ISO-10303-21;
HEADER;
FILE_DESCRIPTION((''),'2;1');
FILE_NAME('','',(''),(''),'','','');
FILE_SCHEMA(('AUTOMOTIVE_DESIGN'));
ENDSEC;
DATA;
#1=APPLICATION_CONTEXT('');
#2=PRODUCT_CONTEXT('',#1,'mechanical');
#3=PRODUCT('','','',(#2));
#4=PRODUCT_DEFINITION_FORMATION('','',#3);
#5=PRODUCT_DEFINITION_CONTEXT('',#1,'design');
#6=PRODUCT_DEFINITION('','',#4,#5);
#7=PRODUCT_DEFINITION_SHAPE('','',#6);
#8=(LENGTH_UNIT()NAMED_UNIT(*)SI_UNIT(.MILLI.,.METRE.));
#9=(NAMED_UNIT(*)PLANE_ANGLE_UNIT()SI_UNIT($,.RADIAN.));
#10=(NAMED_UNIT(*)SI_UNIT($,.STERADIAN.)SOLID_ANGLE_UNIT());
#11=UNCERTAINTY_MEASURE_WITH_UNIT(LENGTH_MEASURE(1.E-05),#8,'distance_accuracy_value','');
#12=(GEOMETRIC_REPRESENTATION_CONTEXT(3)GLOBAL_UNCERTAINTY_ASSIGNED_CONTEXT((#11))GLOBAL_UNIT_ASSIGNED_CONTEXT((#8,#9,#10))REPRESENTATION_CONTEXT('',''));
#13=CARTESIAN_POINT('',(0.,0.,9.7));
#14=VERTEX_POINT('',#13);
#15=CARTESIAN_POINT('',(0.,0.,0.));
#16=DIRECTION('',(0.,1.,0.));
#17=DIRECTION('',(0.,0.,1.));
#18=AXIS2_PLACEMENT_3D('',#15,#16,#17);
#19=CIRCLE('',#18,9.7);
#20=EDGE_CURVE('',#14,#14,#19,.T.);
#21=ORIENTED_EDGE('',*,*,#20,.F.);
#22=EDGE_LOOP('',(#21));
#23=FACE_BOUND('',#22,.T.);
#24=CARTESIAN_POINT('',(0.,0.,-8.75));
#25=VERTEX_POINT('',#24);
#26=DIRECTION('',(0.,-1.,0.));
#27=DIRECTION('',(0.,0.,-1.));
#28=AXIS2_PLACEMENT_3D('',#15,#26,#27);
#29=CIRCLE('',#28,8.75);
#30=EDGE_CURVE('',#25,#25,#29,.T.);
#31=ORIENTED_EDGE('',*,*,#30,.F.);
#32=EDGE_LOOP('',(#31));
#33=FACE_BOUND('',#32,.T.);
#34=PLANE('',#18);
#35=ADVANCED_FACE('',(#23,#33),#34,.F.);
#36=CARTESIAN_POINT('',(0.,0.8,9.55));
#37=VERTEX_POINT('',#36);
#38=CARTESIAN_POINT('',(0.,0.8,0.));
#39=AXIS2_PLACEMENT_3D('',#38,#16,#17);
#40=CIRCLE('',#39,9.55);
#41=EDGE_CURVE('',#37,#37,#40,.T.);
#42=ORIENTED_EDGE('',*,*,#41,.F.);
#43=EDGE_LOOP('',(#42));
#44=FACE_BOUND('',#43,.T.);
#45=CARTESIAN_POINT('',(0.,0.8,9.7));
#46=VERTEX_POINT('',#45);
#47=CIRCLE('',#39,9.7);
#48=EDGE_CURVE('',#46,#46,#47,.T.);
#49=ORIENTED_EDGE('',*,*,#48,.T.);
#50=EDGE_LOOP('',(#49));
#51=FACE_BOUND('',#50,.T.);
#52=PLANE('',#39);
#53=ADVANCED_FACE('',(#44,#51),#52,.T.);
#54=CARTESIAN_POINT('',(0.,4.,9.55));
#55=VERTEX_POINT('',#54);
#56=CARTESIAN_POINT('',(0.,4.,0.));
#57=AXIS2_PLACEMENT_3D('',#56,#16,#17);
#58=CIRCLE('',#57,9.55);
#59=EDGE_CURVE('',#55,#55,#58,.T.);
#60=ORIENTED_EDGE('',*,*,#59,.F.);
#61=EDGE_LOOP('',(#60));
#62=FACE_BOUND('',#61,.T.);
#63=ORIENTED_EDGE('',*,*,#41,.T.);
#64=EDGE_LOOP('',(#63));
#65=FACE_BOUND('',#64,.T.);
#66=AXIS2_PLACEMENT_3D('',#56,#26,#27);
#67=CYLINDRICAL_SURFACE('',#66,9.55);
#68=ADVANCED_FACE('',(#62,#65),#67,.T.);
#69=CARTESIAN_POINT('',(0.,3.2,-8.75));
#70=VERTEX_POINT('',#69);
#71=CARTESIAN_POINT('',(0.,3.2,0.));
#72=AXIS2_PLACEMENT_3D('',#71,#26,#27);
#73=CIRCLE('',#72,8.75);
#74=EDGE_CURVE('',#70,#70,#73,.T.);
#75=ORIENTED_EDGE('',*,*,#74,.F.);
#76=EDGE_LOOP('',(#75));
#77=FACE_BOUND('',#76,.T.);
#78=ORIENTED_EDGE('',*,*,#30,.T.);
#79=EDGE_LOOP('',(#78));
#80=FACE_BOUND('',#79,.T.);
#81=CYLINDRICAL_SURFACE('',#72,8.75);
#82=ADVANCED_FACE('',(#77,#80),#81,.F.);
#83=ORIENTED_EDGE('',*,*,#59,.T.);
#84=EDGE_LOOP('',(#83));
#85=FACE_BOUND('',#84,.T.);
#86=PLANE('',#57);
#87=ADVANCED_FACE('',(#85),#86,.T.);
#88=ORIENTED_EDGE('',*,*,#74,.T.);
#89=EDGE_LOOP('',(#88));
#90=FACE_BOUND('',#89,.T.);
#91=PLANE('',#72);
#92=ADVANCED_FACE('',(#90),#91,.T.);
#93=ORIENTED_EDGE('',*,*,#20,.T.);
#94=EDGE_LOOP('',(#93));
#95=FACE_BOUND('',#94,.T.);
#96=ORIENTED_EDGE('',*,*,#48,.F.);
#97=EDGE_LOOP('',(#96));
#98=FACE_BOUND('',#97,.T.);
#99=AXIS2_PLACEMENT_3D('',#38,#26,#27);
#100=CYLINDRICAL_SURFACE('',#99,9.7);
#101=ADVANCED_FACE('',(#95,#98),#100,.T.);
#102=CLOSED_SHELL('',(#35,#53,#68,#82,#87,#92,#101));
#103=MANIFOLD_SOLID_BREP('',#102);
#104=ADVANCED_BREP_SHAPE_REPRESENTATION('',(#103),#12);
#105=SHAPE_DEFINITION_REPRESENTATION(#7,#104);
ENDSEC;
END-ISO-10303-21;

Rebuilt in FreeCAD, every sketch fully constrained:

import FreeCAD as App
import Part
import Sketcher
Q = App.Units.Quantity

doc = App.newDocument("Part")
body = doc.addObject("PartDesign::Body", "Body")

sketch1 = doc.addObject("Sketcher::SketchObject", "Sketch")
body.addObject(sketch1)
sketch1.AttachmentSupport = (doc.XZ_Plane, [""])
sketch1.MapMode = "FlatFace"
sketch1.addGeometry(Part.Circle(App.Vector(0, 0, 0), App.Vector(0, 0, 1), 10), False)
sketch1.addConstraint([
    Sketcher.Constraint("Coincident", 0, 3, -1, 1),
    Sketcher.Constraint("Diameter", 0, Q("19.4 mm")),
])
pad1 = doc.addObject("PartDesign::Pad", "Pad")
body.addObject(pad1)
pad1.Profile = sketch1
pad1.Length = 0.8
pad1.Reversed = True

sketch2 = doc.addObject("Sketcher::SketchObject", "Sketch001")
body.addObject(sketch2)
sketch2.AttachmentSupport = (doc.XZ_Plane, [""])
sketch2.MapMode = "FlatFace"
sketch2.AttachmentOffset = App.Placement(App.Vector(0, 0, -0.8), App.Rotation())
sketch2.addGeometry(Part.Circle(App.Vector(0, 0, 0), App.Vector(0, 0, 1), 10), False)
sketch2.addConstraint([
    Sketcher.Constraint("Coincident", 0, 3, -1, 1),
    Sketcher.Constraint("Diameter", 0, Q("19.1 mm")),
])
pad2 = doc.addObject("PartDesign::Pad", "Pad001")
body.addObject(pad2)
pad2.Profile = sketch2
pad2.Length = 3.2
pad2.Reversed = True

sketch3 = doc.addObject("Sketcher::SketchObject", "Sketch002")
body.addObject(sketch3)
sketch3.AttachmentSupport = (doc.XZ_Plane, [""])
sketch3.MapMode = "FlatFace"
sketch3.addGeometry(Part.Circle(App.Vector(0, 0, 0), App.Vector(0, 0, 1), 9), False)
sketch3.addConstraint([
    Sketcher.Constraint("Coincident", 0, 3, -1, 1),
    Sketcher.Constraint("Diameter", 0, Q("17.5 mm")),
])
pocket1 = doc.addObject("PartDesign::Pocket", "Pocket")
body.addObject(pocket1)
pocket1.Profile = sketch3
pocket1.Length = 3.2

doc.recompute()
